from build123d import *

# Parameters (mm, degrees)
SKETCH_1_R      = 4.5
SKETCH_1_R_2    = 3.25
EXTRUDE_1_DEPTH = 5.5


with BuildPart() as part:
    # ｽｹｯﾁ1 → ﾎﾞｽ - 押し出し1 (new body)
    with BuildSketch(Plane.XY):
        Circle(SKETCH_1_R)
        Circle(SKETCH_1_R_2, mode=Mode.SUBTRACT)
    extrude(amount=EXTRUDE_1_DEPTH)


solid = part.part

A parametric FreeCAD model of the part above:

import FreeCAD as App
import Part
import Sketcher

doc = App.newDocument("Part")
body = doc.addObject("PartDesign::Body", "Body")

sketch1 = doc.addObject("Sketcher::SketchObject", "Sketch")
body.addObject(sketch1)
sketch1.AttachmentSupport = (doc.XY_Plane, [""])
sketch1.MapMode = "FlatFace"
sketch1.addGeometry([
    Part.Circle(App.Vector(0, 0, 0), App.Vector(0, 0, 1), 4.5),
    Part.Circle(App.Vector(0, 0, 0), App.Vector(0, 0, 1), 3.25),
], False)
sketch1.addConstraint([
    Sketcher.Constraint("Coincident", 0, 3, -1, 1),
    Sketcher.Constraint("Coincident", 1, 3, -1, 1),
    Sketcher.Constraint("Diameter", 0, 9.0),
    Sketcher.Constraint("Diameter", 1, 6.5),
])
pad1 = doc.addObject("PartDesign::Pad", "Pad")
body.addObject(pad1)
pad1.Profile = sketch1
pad1.Length = 5.5

doc.recompute()
